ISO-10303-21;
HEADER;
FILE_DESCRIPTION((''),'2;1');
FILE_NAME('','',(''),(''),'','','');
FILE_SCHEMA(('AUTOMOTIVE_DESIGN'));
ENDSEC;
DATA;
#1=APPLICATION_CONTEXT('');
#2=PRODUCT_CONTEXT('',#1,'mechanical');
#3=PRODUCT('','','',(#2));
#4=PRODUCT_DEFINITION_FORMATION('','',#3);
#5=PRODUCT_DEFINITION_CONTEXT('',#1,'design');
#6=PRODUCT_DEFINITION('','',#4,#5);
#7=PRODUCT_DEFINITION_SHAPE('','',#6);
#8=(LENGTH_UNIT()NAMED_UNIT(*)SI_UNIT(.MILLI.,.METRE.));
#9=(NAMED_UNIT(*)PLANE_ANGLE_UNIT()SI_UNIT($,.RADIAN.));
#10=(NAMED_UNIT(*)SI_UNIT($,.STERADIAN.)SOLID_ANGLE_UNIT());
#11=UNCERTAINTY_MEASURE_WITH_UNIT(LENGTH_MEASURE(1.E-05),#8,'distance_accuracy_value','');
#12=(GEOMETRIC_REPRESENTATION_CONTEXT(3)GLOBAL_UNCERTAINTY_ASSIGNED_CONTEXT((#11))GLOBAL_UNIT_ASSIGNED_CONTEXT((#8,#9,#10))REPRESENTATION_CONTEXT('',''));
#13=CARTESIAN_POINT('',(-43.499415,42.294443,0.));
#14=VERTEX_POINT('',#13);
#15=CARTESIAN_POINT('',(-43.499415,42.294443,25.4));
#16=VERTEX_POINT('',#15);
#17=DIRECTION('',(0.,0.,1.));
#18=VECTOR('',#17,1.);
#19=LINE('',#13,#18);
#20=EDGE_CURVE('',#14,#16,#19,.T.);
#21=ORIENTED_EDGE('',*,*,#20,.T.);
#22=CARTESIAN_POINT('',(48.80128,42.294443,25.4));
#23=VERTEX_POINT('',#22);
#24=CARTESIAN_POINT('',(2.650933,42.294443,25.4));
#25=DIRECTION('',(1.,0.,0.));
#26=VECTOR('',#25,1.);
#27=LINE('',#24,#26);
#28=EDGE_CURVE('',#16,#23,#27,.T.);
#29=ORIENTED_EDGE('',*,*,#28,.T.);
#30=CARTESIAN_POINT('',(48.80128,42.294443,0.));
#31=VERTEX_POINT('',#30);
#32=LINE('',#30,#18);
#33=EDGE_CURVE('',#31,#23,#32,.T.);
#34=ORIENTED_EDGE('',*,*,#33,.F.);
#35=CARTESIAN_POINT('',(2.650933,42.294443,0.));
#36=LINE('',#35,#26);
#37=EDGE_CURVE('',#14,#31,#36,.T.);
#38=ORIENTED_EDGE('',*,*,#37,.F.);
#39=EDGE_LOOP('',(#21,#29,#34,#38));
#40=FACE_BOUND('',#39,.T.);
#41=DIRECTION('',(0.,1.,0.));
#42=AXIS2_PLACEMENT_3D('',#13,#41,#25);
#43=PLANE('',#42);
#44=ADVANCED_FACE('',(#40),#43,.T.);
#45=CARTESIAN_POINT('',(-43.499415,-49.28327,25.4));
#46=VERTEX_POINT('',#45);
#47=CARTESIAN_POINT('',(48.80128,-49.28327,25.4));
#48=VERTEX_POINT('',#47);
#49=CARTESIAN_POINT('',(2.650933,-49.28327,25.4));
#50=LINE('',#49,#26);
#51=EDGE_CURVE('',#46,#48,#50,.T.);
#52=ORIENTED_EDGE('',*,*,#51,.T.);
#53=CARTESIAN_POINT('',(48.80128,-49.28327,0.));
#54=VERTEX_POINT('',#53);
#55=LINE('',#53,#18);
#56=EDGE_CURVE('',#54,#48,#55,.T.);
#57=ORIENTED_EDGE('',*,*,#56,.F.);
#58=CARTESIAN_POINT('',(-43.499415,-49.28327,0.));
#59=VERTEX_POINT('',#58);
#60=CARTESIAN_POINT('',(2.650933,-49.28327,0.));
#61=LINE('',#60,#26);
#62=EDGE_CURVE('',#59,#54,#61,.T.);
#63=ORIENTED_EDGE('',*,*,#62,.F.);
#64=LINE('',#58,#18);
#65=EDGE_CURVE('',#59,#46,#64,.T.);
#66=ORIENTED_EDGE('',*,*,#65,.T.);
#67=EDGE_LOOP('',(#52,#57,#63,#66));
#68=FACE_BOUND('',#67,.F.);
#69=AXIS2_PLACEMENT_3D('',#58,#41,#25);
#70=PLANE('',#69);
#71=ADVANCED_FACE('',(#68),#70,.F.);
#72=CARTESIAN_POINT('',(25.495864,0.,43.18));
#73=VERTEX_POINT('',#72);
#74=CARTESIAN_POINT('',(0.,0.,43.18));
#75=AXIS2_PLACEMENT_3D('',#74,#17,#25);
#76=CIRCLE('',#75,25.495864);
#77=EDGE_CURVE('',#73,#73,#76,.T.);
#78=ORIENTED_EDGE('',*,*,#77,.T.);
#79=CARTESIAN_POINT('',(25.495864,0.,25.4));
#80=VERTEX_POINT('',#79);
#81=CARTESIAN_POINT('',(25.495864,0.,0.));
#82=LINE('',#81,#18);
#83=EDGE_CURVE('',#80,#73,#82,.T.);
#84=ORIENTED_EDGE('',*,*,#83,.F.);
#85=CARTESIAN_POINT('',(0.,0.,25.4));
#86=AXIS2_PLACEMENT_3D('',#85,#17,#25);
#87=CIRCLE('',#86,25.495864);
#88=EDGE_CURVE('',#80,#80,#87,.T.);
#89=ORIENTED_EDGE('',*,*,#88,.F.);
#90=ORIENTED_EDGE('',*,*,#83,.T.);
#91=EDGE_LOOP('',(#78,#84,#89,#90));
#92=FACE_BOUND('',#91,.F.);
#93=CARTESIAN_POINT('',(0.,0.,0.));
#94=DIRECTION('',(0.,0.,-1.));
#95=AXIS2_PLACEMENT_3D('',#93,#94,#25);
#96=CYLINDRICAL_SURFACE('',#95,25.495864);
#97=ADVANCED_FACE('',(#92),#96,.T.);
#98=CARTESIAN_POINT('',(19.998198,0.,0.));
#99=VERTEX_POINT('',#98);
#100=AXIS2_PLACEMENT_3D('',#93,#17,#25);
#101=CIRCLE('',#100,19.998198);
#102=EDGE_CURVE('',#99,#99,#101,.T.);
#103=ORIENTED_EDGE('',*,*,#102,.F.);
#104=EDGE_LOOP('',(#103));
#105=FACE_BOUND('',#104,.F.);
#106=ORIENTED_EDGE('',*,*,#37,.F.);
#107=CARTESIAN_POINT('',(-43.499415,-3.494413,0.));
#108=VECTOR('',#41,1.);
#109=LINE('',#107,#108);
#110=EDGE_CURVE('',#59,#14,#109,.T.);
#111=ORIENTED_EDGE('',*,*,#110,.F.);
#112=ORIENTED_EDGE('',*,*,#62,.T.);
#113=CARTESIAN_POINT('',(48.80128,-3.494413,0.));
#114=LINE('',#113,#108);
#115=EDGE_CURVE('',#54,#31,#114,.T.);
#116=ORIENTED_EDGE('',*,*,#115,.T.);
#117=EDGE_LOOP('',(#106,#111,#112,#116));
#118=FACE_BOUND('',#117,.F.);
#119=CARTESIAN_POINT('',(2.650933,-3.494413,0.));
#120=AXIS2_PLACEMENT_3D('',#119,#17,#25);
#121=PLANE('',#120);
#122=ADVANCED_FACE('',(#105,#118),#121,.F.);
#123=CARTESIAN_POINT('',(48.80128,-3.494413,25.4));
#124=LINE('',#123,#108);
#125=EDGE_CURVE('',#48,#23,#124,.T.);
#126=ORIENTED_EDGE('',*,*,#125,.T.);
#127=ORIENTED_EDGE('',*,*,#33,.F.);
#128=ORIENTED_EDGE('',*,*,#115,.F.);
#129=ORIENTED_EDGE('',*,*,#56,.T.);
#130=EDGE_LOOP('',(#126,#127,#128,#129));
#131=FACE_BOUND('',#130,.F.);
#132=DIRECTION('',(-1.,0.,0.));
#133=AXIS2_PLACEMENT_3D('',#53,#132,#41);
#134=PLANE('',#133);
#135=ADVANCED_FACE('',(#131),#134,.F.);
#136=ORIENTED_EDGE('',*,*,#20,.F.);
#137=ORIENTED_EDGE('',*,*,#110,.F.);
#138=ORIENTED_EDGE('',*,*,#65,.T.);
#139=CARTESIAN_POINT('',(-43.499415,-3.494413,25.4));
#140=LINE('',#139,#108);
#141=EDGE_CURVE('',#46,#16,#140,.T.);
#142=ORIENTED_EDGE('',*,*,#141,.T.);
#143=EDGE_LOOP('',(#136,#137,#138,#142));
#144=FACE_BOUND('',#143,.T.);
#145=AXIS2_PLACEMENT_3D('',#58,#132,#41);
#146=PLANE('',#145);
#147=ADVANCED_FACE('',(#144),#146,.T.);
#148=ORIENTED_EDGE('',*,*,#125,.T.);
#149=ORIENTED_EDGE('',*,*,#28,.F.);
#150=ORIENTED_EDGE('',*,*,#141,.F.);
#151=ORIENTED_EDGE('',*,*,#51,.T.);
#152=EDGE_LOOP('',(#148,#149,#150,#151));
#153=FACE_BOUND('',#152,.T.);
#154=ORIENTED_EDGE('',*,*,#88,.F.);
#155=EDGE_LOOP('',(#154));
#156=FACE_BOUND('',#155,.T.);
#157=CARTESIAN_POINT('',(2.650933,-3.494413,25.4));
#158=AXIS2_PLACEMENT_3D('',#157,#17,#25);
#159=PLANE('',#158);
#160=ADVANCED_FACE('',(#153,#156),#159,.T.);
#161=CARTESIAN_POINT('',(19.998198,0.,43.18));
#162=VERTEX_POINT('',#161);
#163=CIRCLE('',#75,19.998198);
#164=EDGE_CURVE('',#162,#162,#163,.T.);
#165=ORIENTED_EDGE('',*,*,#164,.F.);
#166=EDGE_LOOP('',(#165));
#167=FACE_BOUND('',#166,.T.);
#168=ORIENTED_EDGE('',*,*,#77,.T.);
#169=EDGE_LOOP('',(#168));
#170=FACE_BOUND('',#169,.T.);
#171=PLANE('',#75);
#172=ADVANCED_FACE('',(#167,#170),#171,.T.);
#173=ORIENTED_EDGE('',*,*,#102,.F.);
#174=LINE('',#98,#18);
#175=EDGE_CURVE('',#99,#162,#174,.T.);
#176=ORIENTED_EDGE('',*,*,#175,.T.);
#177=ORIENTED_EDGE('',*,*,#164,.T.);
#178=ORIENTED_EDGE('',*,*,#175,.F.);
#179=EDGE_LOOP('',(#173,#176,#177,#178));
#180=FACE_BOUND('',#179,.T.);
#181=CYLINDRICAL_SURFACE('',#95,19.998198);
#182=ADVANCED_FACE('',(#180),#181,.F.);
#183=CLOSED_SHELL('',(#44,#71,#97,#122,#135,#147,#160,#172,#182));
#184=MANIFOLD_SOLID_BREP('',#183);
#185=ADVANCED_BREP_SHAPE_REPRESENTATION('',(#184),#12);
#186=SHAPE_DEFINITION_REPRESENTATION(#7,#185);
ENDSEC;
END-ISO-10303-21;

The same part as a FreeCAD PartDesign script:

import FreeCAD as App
import Part
import Sketcher
Q = App.Units.Quantity

doc = App.newDocument("Part")
body = doc.addObject("PartDesign::Body", "Body")

sketch1 = doc.addObject("Sketcher::SketchObject", "Sketch")
body.addObject(sketch1)
sketch1.AttachmentSupport = (doc.XY_Plane, [""])
sketch1.MapMode = "FlatFace"
sketch1.addGeometry([
    Part.Circle(App.Vector(0, 0, 0), App.Vector(0, 0, 1), 25),
    Part.Circle(App.Vector(0, 0, 0), App.Vector(0, 0, 1), 20),
], False)
sketch1.addConstraint([
    Sketcher.Constraint("Coincident", 0, 3, -1, 1),
    Sketcher.Constraint("Coincident", 1, 3, -1, 1),
    Sketcher.Constraint("Diameter", 0, Q("50.991728 mm")),
    Sketcher.Constraint("Diameter", 1, Q("39.996396 mm")),
])
pad1 = doc.addObject("PartDesign::Pad", "Pad")
body.addObject(pad1)
pad1.Profile = sketch1
pad1.Length = Q("1.7 in")

sketch2 = doc.addObject("Sketcher::SketchObject", "Sketch001")
body.addObject(sketch2)
sketch2.AttachmentSupport = (doc.XY_Plane, [""])
sketch2.MapMode = "FlatFace"
sketch2.addGeometry([
    Part.LineSegment(App.Vector(-43, 42, 0), App.Vector(-43, -49, 0)),
    Part.LineSegment(App.Vector(-43, -49, 0), App.Vector(49, -49, 0)),
    Part.LineSegment(App.Vector(49, -49, 0), App.Vector(49, 42, 0)),
    Part.LineSegment(App.Vector(49, 42, 0), App.Vector(-43, 42, 0)),
    Part.Circle(App.Vector(0, 0, 0), App.Vector(0, 0, 1), 25),
], False)
sketch2.addConstraint([
    Sketcher.Constraint("Coincident", 0, 2, 1, 1),
    Sketcher.Constraint("Coincident", 1, 2, 2, 1),
    Sketcher.Constraint("Coincident", 2, 2, 3, 1),
    Sketcher.Constraint("Coincident", 3, 2, 0, 1),
    Sketcher.Constraint("Vertical", 0),
    Sketcher.Constraint("Horizontal", 1),
    Sketcher.Constraint("Vertical", 2),
    Sketcher.Constraint("Horizontal", 3),
    Sketcher.Constraint("Coincident", 4, 3, -1, 1),
    Sketcher.Constraint("Diameter", 4, Q("50.991728 mm")),
    Sketcher.Constraint("DistanceX", 1, 1, 1, 2, Q("92.300695 mm")),
    Sketcher.Constraint("DistanceY", 0, 2, 0, 1, Q("91.577713 mm")),
    Sketcher.Constraint("DistanceY", 0, 2, -1, 1, Q("49.28327 mm")),
    Sketcher.Constraint("DistanceX", -1, 1, 1, 2, Q("48.80128 mm")),
])
pad2 = doc.addObject("PartDesign::Pad", "Pad001")
body.addObject(pad2)
pad2.Profile = sketch2
pad2.Length = Q("1 in")

doc.recompute()
